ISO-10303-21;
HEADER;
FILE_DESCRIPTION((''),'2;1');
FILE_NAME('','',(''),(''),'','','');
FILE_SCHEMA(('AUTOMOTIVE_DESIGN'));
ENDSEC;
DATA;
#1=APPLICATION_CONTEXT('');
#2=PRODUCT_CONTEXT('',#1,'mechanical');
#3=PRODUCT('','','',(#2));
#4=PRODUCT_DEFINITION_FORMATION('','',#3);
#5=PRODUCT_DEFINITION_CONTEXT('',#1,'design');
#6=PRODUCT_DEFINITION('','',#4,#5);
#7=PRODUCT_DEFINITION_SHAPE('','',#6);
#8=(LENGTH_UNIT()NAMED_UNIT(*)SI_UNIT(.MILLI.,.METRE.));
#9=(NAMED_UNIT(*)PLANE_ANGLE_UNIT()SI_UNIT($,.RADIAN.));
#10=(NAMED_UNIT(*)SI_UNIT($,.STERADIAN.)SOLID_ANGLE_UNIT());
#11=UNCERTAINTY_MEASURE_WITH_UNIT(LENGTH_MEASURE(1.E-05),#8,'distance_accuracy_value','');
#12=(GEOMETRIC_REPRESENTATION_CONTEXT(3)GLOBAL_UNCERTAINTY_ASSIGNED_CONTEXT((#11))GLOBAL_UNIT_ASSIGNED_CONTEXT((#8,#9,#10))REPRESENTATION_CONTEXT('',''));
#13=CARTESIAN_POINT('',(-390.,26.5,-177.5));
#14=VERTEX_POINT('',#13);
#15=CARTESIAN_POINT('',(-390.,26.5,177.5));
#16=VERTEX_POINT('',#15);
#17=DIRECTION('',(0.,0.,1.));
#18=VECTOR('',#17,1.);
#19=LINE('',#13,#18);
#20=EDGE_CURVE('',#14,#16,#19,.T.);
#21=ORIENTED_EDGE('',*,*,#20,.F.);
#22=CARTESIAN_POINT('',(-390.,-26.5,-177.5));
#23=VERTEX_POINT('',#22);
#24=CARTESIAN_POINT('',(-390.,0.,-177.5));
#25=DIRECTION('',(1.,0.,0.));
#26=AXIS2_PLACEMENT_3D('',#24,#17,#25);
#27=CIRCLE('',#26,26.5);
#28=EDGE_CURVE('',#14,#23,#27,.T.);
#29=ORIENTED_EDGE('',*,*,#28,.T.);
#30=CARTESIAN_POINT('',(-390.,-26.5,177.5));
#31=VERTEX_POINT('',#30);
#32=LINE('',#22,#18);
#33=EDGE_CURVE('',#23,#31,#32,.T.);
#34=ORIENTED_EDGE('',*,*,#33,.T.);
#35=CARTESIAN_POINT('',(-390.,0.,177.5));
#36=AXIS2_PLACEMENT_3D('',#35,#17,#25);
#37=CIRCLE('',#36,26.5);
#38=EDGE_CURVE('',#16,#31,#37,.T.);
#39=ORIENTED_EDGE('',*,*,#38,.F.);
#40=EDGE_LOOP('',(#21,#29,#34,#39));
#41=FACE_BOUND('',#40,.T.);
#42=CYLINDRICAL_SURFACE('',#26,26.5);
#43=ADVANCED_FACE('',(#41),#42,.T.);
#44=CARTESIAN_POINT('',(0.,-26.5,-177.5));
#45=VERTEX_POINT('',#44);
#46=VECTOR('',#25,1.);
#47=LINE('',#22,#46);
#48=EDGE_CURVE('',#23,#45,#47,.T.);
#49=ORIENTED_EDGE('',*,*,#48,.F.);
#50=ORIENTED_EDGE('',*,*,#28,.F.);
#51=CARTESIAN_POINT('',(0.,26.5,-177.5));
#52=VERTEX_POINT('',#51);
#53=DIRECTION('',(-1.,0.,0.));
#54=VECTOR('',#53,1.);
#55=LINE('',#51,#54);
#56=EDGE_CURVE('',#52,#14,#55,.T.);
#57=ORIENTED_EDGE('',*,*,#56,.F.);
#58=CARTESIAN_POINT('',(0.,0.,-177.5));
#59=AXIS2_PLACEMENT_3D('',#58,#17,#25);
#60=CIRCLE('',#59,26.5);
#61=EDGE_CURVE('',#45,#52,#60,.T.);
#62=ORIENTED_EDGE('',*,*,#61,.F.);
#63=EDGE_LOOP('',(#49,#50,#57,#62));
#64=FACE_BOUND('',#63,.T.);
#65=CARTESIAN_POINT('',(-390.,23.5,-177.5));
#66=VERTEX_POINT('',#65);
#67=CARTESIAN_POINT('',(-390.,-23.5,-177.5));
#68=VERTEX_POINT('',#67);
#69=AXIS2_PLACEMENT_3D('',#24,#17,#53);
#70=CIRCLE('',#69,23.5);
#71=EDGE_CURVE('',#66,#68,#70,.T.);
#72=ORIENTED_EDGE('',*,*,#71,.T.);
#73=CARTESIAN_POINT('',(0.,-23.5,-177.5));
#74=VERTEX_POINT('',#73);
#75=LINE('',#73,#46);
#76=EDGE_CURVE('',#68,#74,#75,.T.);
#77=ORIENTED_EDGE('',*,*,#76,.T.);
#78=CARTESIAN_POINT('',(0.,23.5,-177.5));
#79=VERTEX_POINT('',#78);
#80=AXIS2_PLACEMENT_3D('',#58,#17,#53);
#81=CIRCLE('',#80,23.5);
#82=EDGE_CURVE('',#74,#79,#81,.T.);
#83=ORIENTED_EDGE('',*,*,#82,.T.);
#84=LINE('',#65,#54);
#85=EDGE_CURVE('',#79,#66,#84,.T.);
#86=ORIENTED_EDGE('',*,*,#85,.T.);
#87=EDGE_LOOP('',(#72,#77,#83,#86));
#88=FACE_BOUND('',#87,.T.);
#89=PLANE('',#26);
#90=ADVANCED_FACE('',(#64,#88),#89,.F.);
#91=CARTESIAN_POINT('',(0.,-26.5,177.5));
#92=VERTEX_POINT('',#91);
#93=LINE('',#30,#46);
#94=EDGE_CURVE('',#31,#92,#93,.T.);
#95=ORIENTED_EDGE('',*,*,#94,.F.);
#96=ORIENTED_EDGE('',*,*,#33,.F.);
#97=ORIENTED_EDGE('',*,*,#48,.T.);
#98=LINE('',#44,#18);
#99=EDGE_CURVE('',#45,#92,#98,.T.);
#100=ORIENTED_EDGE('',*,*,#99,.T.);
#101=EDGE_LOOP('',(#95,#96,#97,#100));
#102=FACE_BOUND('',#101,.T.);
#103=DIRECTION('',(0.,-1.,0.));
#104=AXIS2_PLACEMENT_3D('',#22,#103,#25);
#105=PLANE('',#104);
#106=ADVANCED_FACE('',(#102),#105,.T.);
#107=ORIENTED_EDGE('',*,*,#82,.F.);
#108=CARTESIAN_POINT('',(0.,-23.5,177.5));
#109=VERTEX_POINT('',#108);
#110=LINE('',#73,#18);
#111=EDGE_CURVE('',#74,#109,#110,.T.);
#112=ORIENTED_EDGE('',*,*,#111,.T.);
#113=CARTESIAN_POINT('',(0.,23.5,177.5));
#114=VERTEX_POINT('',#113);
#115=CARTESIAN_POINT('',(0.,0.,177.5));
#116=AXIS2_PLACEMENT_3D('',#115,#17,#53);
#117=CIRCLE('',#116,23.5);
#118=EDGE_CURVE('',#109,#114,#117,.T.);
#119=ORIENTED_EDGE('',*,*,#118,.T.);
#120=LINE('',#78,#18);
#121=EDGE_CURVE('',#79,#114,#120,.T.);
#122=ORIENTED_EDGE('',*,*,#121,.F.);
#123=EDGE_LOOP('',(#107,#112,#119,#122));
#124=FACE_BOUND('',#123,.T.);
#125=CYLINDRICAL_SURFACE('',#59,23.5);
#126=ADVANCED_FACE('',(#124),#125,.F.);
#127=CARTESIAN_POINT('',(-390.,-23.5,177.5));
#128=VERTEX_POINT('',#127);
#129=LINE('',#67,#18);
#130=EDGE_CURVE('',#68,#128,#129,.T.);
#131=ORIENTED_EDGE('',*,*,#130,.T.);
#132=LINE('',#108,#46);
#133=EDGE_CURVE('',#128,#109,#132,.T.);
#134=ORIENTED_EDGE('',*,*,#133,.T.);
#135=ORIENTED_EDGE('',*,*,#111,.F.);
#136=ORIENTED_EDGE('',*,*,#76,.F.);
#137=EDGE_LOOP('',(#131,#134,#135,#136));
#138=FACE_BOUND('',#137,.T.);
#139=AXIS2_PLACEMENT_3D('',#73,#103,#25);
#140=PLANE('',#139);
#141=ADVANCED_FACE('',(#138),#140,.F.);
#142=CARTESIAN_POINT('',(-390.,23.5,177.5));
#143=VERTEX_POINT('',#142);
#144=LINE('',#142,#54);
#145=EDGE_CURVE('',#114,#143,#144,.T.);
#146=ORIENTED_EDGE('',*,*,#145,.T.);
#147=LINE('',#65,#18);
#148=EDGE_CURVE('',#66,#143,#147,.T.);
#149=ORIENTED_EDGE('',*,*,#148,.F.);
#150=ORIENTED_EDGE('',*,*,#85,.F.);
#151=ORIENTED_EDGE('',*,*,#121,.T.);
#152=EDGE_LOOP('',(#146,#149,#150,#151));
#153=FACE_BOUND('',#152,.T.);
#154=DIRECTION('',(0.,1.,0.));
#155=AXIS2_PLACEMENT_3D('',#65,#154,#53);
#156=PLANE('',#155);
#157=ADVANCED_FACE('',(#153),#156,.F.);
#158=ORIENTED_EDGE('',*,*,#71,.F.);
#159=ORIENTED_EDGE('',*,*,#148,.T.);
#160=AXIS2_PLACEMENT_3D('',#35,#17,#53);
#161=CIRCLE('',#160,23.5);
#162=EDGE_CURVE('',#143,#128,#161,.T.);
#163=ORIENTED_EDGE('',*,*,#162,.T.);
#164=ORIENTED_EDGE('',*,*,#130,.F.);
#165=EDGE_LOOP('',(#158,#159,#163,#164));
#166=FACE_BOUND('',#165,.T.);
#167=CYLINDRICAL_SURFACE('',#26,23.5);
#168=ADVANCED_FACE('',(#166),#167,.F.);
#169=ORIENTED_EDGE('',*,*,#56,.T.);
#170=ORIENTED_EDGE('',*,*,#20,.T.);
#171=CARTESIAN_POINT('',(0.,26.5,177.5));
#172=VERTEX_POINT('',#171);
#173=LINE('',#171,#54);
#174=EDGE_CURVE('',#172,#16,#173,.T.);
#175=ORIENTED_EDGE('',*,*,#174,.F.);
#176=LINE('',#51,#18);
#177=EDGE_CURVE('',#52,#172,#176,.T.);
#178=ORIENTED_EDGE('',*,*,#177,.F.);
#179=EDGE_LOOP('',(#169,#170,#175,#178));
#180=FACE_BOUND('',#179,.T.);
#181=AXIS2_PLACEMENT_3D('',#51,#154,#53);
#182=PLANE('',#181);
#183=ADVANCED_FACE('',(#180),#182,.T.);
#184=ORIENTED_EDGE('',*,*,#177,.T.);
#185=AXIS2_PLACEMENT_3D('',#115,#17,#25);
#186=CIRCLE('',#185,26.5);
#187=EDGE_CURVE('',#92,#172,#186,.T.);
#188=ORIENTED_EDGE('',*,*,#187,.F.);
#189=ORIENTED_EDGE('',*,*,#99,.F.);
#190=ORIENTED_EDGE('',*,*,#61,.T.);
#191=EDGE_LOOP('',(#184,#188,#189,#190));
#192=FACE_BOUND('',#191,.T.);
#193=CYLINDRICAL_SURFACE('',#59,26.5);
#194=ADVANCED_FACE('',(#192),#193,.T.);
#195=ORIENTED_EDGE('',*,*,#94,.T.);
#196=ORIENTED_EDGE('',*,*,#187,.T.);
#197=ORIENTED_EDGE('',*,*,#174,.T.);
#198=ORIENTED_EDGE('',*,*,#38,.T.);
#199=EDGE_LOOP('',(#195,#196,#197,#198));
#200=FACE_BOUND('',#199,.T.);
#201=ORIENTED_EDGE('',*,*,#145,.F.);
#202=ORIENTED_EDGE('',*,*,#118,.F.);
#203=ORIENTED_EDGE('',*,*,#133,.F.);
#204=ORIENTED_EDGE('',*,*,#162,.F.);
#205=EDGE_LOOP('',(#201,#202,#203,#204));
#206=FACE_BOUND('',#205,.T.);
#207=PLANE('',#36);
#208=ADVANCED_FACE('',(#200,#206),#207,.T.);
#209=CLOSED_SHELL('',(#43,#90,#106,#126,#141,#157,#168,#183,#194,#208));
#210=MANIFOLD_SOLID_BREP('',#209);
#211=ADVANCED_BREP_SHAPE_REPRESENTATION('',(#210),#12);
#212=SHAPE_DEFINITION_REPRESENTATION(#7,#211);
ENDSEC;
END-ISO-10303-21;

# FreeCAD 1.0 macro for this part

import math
import FreeCAD as App
import Part
import Sketcher

V = App.Vector

doc = App.newDocument("Part")
params = doc.addObject("Spreadsheet::Sheet", "Params")
for row, (alias, value) in enumerate([
    ("sketch1_radius", "26.5 mm"),
    ("sketch1_radius2", "23.5 mm"),
    ("sketch1_width", "390 mm"),
    ("pad1_length", "355 mm"),
], start=1):
    params.set(f"A{row}", alias)
    params.set(f"B{row}", "=" + value)
    params.setAlias(f"B{row}", alias)

body = doc.addObject("PartDesign::Body", "Body")

sketch1 = body.newObject("Sketcher::SketchObject", "Sketch")
sketch1.AttachmentSupport = (doc.getObject("XY_Plane"), [""])
sketch1.MapMode = "FlatFace"
sketch1.AttachmentOffset = App.Placement(V(0, 0, 177.5), App.Rotation())
sketch1.addGeometry([
    Part.LineSegment(V(-390, -26.5, 0), V(0, -26.5, 0)),
    Part.ArcOfCircle(Part.Circle(V(0, 0, 0), V(0, 0, 1), 26.5), math.radians(-90), math.radians(90)),
    Part.LineSegment(V(0, 26.5, 0), V(-390, 26.5, 0)),
    Part.ArcOfCircle(Part.Circle(V(-390, 0, 0), V(0, 0, 1), 26.5), math.radians(90), math.radians(270)),
    Part.ArcOfCircle(Part.Circle(V(0, 0, 0), V(0, 0, 1), 23.5), math.radians(-90), math.radians(90)),
    Part.LineSegment(V(0, -23.5, 0), V(-390, -23.5, 0)),
    Part.ArcOfCircle(Part.Circle(V(-390, 0, 0), V(0, 0, 1), 23.5), math.radians(90), math.radians(270)),
    Part.LineSegment(V(-390, 23.5, 0), V(0, 23.5, 0)),
], False)
sketch1.addConstraint([
    Sketcher.Constraint("Tangent", 0, 2, 1, 1),
    Sketcher.Constraint("Tangent", 1, 2, 2, 1),
    Sketcher.Constraint("Tangent", 2, 2, 3, 1),
    Sketcher.Constraint("Tangent", 3, 2, 0, 1),
    Sketcher.Constraint("Tangent", 4, 1, 5, 1),
    Sketcher.Constraint("Tangent", 5, 2, 6, 2),
    Sketcher.Constraint("Tangent", 6, 1, 7, 1),
    Sketcher.Constraint("Tangent", 7, 2, 4, 2),
    Sketcher.Constraint("Horizontal", 0),
    Sketcher.Constraint("Horizontal", 2),
    Sketcher.Constraint("Horizontal", 5),
    Sketcher.Constraint("Horizontal", 7),
    Sketcher.Constraint("Coincident", 1, 3, -1, 1),
    Sketcher.Constraint("Coincident", 4, 3, -1, 1),
    Sketcher.Constraint("Vertical", 6, 3, 2, 2),
    Sketcher.Constraint("Radius", 1, 26.5),
    Sketcher.Constraint("Radius", 4, 23.5),
    Sketcher.Constraint("DistanceX", 0, 1, 0, 2, 390.0),
])
sketch1.setExpression("Constraints[15]", "Params.sketch1_radius")
sketch1.setExpression("Constraints[16]", "Params.sketch1_radius2")
sketch1.setExpression("Constraints[17]", "Params.sketch1_width")
pad1 = body.newObject("PartDesign::Pad", "Pad")
pad1.Profile = sketch1
pad1.setExpression("Length", "Params.pad1_length")
pad1.Reversed = True

doc.recompute()
